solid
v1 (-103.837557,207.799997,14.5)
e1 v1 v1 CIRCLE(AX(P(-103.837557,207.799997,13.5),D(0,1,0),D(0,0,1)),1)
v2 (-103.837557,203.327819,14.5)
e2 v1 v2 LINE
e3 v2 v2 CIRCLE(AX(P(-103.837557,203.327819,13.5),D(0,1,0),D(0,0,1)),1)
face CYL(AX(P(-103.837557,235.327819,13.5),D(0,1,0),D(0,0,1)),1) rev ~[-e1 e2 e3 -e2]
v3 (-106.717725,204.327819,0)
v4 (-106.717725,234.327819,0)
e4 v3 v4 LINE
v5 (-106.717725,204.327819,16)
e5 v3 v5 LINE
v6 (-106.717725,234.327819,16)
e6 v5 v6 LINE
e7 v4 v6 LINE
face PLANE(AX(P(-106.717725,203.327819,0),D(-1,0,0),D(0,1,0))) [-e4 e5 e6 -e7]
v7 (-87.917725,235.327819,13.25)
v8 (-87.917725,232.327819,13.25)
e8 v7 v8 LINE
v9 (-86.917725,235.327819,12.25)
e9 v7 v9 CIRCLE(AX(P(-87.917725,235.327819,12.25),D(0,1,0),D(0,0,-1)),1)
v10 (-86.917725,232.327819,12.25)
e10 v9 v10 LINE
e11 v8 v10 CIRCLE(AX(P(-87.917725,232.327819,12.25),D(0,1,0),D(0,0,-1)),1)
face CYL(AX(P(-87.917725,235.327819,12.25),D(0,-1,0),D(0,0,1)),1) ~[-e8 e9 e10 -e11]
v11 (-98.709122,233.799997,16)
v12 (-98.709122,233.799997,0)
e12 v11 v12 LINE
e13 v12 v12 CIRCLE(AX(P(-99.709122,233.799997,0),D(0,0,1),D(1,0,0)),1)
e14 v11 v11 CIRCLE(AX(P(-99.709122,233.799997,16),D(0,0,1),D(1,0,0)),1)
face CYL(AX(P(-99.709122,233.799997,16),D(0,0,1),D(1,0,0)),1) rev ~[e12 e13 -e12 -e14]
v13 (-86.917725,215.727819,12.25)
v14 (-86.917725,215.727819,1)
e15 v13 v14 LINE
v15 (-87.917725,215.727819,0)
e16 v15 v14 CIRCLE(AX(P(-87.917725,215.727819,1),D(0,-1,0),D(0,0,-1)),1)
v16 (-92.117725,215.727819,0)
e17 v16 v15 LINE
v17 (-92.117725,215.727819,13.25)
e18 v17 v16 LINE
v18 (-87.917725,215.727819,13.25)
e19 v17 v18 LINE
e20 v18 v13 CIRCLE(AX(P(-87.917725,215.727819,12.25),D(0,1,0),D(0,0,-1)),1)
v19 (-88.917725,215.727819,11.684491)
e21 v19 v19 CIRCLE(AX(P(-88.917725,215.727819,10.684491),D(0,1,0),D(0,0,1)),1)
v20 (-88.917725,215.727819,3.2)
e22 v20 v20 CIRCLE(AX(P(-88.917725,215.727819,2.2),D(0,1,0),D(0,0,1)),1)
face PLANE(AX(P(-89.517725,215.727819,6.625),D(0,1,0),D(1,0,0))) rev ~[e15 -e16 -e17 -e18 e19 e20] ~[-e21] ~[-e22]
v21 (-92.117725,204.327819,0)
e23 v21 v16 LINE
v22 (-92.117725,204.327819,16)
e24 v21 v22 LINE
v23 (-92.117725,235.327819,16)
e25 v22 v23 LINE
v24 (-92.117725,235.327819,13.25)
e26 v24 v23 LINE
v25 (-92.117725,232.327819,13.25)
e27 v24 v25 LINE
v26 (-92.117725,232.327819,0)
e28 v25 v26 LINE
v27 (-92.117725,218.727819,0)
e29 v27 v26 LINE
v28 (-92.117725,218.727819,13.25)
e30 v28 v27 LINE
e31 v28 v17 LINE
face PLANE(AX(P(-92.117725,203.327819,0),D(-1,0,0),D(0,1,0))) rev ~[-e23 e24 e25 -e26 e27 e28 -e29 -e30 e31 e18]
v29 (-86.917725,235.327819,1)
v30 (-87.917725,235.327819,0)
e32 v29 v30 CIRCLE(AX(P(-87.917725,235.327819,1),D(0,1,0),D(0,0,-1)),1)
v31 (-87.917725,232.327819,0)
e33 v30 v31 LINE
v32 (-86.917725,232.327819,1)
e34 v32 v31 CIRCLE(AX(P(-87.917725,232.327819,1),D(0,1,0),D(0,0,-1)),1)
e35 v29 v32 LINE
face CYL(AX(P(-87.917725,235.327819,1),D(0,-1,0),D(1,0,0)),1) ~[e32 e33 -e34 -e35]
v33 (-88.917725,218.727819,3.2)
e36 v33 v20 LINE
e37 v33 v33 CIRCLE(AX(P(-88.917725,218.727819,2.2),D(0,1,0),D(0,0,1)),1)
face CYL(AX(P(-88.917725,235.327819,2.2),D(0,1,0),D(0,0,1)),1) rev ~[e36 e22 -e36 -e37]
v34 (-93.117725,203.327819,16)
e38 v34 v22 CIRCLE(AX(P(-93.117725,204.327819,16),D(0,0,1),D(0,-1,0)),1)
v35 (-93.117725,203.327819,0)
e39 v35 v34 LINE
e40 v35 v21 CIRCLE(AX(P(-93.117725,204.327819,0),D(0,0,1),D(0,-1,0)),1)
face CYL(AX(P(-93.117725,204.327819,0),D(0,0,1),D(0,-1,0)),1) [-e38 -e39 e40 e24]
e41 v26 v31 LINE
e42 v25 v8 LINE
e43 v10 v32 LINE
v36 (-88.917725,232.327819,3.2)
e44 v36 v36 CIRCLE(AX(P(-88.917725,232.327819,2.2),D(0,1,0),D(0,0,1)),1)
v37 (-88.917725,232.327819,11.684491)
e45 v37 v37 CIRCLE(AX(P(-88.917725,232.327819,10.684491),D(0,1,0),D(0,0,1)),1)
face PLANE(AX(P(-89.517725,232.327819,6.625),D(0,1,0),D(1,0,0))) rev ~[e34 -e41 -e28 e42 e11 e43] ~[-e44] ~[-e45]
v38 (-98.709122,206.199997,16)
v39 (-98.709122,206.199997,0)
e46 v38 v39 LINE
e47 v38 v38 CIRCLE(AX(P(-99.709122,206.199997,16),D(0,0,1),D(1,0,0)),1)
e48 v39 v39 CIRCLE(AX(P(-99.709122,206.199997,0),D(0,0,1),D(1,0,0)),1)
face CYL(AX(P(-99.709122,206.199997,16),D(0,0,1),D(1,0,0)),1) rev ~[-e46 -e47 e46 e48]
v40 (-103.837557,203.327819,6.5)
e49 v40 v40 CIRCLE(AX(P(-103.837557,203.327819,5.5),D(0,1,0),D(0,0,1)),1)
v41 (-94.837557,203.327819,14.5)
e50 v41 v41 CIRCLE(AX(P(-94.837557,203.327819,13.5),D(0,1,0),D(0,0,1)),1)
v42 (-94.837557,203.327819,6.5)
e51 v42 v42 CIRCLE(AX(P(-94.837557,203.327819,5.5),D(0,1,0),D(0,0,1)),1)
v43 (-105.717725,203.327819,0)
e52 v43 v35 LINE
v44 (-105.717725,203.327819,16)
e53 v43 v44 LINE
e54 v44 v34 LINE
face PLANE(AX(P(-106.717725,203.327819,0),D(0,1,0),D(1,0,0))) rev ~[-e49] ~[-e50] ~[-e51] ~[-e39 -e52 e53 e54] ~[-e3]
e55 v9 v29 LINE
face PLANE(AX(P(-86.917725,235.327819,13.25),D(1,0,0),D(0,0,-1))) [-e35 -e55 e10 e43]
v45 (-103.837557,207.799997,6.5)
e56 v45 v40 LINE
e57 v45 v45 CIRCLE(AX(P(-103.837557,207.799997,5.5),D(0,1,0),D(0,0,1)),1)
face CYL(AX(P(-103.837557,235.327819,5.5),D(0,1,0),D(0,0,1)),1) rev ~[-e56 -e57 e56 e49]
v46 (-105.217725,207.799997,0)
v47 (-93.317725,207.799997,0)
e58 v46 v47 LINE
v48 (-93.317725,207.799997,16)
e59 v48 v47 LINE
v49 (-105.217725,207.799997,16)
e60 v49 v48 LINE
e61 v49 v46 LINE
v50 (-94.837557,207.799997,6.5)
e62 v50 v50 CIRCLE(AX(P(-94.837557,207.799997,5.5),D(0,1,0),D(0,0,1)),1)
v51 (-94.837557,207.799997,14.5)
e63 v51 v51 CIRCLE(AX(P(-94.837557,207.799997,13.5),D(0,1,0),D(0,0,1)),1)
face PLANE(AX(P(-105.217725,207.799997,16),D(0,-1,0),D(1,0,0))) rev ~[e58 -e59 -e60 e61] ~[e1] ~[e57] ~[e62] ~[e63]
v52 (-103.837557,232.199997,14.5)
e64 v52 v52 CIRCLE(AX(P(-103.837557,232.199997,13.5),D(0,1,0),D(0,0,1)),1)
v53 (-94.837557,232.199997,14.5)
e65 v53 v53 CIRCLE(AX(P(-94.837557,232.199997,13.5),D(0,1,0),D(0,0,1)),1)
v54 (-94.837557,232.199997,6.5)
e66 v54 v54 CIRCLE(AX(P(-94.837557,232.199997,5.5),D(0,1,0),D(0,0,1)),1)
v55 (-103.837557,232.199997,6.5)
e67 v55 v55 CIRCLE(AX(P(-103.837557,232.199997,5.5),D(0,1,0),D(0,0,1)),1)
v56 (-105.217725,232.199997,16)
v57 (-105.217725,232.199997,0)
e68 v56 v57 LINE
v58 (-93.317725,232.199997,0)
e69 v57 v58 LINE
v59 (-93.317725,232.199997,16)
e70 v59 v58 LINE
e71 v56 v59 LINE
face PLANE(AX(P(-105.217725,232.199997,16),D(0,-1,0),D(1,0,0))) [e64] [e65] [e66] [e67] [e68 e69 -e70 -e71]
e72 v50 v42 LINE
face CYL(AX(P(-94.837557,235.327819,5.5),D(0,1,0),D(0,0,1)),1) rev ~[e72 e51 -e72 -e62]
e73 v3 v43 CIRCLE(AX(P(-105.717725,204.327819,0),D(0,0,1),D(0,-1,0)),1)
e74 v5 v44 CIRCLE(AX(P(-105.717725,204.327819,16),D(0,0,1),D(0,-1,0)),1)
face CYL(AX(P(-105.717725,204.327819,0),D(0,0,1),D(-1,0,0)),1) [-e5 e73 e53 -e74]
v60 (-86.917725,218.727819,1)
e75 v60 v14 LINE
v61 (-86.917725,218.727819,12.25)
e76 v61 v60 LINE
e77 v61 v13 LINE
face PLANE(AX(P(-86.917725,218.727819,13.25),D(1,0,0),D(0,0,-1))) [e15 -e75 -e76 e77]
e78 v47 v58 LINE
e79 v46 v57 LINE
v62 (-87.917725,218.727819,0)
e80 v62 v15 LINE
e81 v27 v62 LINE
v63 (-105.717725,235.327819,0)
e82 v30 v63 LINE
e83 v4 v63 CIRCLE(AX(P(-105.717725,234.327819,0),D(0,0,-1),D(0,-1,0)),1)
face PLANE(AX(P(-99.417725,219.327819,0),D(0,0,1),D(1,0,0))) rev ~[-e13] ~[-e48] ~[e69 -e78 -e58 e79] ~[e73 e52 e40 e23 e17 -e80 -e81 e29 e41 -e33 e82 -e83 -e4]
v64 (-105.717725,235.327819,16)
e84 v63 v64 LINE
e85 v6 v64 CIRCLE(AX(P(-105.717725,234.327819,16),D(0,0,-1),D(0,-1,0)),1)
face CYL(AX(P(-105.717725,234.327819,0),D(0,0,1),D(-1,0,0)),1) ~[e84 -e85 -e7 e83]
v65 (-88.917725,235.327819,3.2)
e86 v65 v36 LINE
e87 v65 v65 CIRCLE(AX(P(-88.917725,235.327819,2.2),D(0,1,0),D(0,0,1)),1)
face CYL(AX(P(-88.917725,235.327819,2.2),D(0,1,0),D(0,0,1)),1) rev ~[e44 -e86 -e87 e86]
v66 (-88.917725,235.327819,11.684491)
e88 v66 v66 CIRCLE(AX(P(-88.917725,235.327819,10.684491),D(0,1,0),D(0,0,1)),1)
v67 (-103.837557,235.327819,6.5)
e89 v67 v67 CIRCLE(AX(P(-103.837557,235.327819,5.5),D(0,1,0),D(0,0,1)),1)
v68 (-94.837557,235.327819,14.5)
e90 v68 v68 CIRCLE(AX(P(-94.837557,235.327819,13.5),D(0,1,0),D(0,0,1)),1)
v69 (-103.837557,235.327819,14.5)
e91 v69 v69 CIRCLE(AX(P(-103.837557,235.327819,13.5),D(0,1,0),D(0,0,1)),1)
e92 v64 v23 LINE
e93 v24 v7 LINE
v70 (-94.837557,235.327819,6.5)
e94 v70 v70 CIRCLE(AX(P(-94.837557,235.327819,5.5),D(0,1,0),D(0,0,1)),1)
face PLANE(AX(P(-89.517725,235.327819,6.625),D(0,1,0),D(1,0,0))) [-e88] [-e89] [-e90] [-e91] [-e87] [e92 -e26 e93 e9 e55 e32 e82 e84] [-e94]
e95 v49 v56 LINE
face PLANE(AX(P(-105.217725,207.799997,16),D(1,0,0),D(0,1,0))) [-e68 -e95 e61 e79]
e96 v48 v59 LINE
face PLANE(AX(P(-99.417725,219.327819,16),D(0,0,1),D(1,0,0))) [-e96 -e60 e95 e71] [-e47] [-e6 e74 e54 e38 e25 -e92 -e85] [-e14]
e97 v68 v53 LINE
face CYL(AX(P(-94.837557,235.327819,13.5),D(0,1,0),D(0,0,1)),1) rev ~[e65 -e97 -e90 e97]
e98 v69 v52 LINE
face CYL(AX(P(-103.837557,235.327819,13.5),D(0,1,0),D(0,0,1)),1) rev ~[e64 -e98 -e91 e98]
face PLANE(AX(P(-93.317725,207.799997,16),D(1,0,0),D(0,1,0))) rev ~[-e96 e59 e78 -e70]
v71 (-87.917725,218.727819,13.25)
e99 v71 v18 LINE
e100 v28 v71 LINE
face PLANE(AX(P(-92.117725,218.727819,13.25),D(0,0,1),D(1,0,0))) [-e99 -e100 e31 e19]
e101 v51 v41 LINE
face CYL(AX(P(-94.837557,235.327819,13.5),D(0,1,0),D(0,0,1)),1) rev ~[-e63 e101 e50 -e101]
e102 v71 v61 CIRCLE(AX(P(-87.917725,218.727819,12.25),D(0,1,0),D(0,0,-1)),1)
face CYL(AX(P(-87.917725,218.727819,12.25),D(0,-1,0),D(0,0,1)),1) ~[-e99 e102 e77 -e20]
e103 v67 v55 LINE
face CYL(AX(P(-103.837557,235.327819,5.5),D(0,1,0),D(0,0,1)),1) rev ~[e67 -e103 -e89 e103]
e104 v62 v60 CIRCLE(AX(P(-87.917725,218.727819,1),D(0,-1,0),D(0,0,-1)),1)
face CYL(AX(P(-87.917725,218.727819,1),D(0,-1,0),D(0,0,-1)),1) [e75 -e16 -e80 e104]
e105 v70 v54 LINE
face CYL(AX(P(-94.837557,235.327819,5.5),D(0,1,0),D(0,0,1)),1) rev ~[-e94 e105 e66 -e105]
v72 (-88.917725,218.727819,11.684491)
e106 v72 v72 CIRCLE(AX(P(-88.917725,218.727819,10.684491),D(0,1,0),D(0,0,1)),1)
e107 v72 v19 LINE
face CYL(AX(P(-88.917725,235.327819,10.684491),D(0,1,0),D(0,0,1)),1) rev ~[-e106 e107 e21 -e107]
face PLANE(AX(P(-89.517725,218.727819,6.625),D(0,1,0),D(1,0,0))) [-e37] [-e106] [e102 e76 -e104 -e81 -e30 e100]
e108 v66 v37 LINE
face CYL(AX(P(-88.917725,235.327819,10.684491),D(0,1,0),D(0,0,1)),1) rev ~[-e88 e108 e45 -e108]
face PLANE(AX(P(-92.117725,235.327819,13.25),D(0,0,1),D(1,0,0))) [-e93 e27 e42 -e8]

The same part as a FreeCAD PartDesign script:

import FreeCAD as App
import Part
import Sketcher


def edges_at(feature, points):
    """Names of the edges that pass closest to the given points."""
    edges = feature.Shape.Edges
    near = lambda p: min(range(len(edges)), key=lambda i: edges[i].distToShape(Part.Vertex(*p))[0])
    return sorted({f"Edge{near(p) + 1}" for p in points})


def add_polygon(sketch, points):
    """Adds a closed chain of lines whose ends are joined by coincident constraints."""
    first, n = sketch.GeometryCount, len(points)
    for a, b in zip(points, points[1:] + points[:1]):
        sketch.addGeometry(Part.LineSegment(App.Vector(*a, 0), App.Vector(*b, 0)), False)
    for i in range(n):
        sketch.addConstraint(Sketcher.Constraint("Coincident", first + i, 2, first + (i + 1) % n, 1))

doc = App.newDocument("Part")
body = doc.addObject("PartDesign::Body", "Body")

sketch1 = doc.addObject("Sketcher::SketchObject", "Sketch")
body.addObject(sketch1)
sketch1.AttachmentSupport = (doc.XY_Plane, [""])
sketch1.MapMode = "FlatFace"
add_polygon(sketch1, [(-107, 235), (-107, 203), (-92, 203), (-92, 235)])
sketch1.addConstraint(Sketcher.Constraint("Vertical", 0))
sketch1.addConstraint(Sketcher.Constraint("Horizontal", 1))
sketch1.addConstraint(Sketcher.Constraint("Vertical", 2))
sketch1.addConstraint(Sketcher.Constraint("Horizontal", 3))
sketch1.addConstraint(Sketcher.Constraint("DistanceY", 0, 2, 0, 1, 32.0))
sketch1.addConstraint(Sketcher.Constraint("DistanceX", 1, 1, 1, 2, 14.6))
sketch1.addConstraint(Sketcher.Constraint("DistanceY", -1, 1, 0, 2, 203.327819))
sketch1.addConstraint(Sketcher.Constraint("DistanceX", 0, 2, -1, 1, 106.717725))
pad1 = doc.addObject("PartDesign::Pad", "Pad")
body.addObject(pad1)
pad1.Profile = sketch1
pad1.Length = 16
doc.recompute()

fillet = doc.addObject("PartDesign::Fillet", "Fillet")
body.addObject(fillet)
fillet.Base = (pad1, edges_at(pad1, [(-106.718, 235.328, 8), (-92.118, 203.328, 8), (-106.718, 203.328, 8)]))
fillet.Radius = 1

sketch2 = doc.addObject("Sketcher::SketchObject", "Sketch001")
body.addObject(sketch2)
sketch2.AttachmentSupport = (doc.XY_Plane, [""])
sketch2.MapMode = "FlatFace"
sketch2.AttachmentOffset = App.Placement(App.Vector(0, 0, 16), App.Rotation())
add_polygon(sketch2, [(-105, 232), (-105, 208), (-93, 208), (-93, 232)])
sketch2.addConstraint(Sketcher.Constraint("Vertical", 0))
sketch2.addConstraint(Sketcher.Constraint("Horizontal", 1))
sketch2.addConstraint(Sketcher.Constraint("Vertical", 2))
sketch2.addConstraint(Sketcher.Constraint("Horizontal", 3))
sketch2.addConstraint(Sketcher.Constraint("DistanceX", 1, 1, 1, 2, 11.9))
sketch2.addConstraint(Sketcher.Constraint("DistanceY", 0, 2, 0, 1, 24.4))
sketch2.addConstraint(Sketcher.Constraint("DistanceX", 0, 2, -1, 1, 105.217725))
sketch2.addConstraint(Sketcher.Constraint("DistanceY", -1, 1, 0, 2, 207.799997))
pocket1 = doc.addObject("PartDesign::Pocket", "Pocket")
body.addObject(pocket1)
pocket1.Profile = sketch2
pocket1.Length = 16

sketch3 = doc.addObject("Sketcher::SketchObject", "Sketch002")
body.addObject(sketch3)
sketch3.AttachmentSupport = (doc.XY_Plane, [""])
sketch3.MapMode = "FlatFace"
sketch3.AttachmentOffset = App.Placement(App.Vector(0, 0, 16), App.Rotation())
sketch3.addGeometry(Part.Circle(App.Vector(-99.7, 233.8, 0), App.Vector(0, 0, 1), 1), False)
sketch3.addGeometry(Part.Circle(App.Vector(-99.7, 206.2, 0), App.Vector(0, 0, 1), 1), False)
sketch3.addConstraint(Sketcher.Constraint("Equal", 0, 1))
sketch3.addConstraint(Sketcher.Constraint("Vertical", 0, 3, 1, 3))
sketch3.addConstraint(Sketcher.Constraint("Diameter", 0, 2.0))
sketch3.addConstraint(Sketcher.Constraint("DistanceY", 1, 3, 0, 3, 27.6))
sketch3.addConstraint(Sketcher.Constraint("DistanceX", 0, 3, -1, 1, 99.709122))
sketch3.addConstraint(Sketcher.Constraint("DistanceY", -1, 1, 0, 3, 233.799997))
pocket2 = doc.addObject("PartDesign::Pocket", "Pocket001")
body.addObject(pocket2)
pocket2.Profile = sketch3
pocket2.Length = 16

sketch4 = doc.addObject("Sketcher::SketchObject", "Sketch003")
body.addObject(sketch4)
sketch4.AttachmentSupport = (doc.XZ_Plane, [""])
sketch4.MapMode = "FlatFace"
sketch4.AttachmentOffset = App.Placement(App.Vector(0, 0, -235.327819), App.Rotation())
sketch4.addGeometry(Part.Circle(App.Vector(-103.8, 5.5, 0), App.Vector(0, 0, 1), 1), False)
sketch4.addGeometry(Part.Circle(App.Vector(-94.8, 5.5, 0), App.Vector(0, 0, 1), 1), False)
sketch4.addGeometry(Part.Circle(App.Vector(-94.8, 13.5, 0), App.Vector(0, 0, 1), 1), False)
sketch4.addGeometry(Part.Circle(App.Vector(-103.8, 13.5, 0), App.Vector(0, 0, 1), 1), False)
sketch4.addConstraint(Sketcher.Constraint("Equal", 0, 1))
sketch4.addConstraint(Sketcher.Constraint("Equal", 1, 2))
sketch4.addConstraint(Sketcher.Constraint("Equal", 2, 3))
sketch4.addConstraint(Sketcher.Constraint("Horizontal", 0, 3, 1, 3))
sketch4.addConstraint(Sketcher.Constraint("Horizontal", 2, 3, 3, 3))
sketch4.addConstraint(Sketcher.Constraint("Vertical", 1, 3, 2, 3))
sketch4.addConstraint(Sketcher.Constraint("Vertical", 0, 3, 3, 3))
sketch4.addConstraint(Sketcher.Constraint("Diameter", 0, 2.0))
sketch4.addConstraint(Sketcher.Constraint("DistanceX", 0, 3, 1, 3, 9.0))
sketch4.addConstraint(Sketcher.Constraint("DistanceY", 1, 3, 2, 3, 8.0))
sketch4.addConstraint(Sketcher.Constraint("DistanceY", -1, 1, 0, 3, 5.5))
sketch4.addConstraint(Sketcher.Constraint("DistanceX", 0, 3, -1, 1, 103.837557))
pocket3 = doc.addObject("PartDesign::Pocket", "Pocket002")
body.addObject(pocket3)
pocket3.Profile = sketch4
pocket3.Type = "ThroughAll"
pocket3.Reversed = True

sketch5 = doc.addObject("Sketcher::SketchObject", "Sketch004")
body.addObject(sketch5)
sketch5.AttachmentSupport = (doc.XZ_Plane, [""])
sketch5.MapMode = "FlatFace"
sketch5.AttachmentOffset = App.Placement(App.Vector(0, 0, -235.327819), App.Rotation())
add_polygon(sketch5, [(-92, 0), (-92, 13), (-87, 13), (-87, 0)])
sketch5.addConstraint(Sketcher.Constraint("Vertical", 0))
sketch5.addConstraint(Sketcher.Constraint("Horizontal", 1))
sketch5.addConstraint(Sketcher.Constraint("Vertical", 2))
sketch5.addConstraint(Sketcher.Constraint("Horizontal", 3))
sketch5.addConstraint(Sketcher.Constraint("PointOnObject", 2, 2, -1))
sketch5.addConstraint(Sketcher.Constraint("DistanceX", 1, 1, 1, 2, 5.2))
sketch5.addConstraint(Sketcher.Constraint("DistanceY", 0, 1, 0, 2, 13.25))
sketch5.addConstraint(Sketcher.Constraint("DistanceX", 0, 2, -1, 1, 92.117725))
pad2 = doc.addObject("PartDesign::Pad", "Pad001")
body.addObject(pad2)
pad2.Profile = sketch5
pad2.Length = 3

sketch6 = doc.addObject("Sketcher::SketchObject", "Sketch005")
body.addObject(sketch6)
sketch6.AttachmentSupport = (doc.XZ_Plane, [""])
sketch6.MapMode = "FlatFace"
sketch6.AttachmentOffset = App.Placement(App.Vector(0, 0, -218.727819), App.Rotation())
add_polygon(sketch6, [(-92, 0), (-92, 13), (-87, 13), (-87, 0)])
sketch6.addConstraint(Sketcher.Constraint("Vertical", 0))
sketch6.addConstraint(Sketcher.Constraint("Horizontal", 1))
sketch6.addConstraint(Sketcher.Constraint("Vertical", 2))
sketch6.addConstraint(Sketcher.Constraint("Horizontal", 3))
sketch6.addConstraint(Sketcher.Constraint("PointOnObject", 2, 2, -1))
sketch6.addConstraint(Sketcher.Constraint("DistanceX", 1, 1, 1, 2, 5.2))
sketch6.addConstraint(Sketcher.Constraint("DistanceY", 0, 1, 0, 2, 13.25))
sketch6.addConstraint(Sketcher.Constraint("DistanceX", 0, 2, -1, 1, 92.117725))
pad3 = doc.addObject("PartDesign::Pad", "Pad002")
body.addObject(pad3)
pad3.Profile = sketch6
pad3.Length = 3

sketch7 = doc.addObject("Sketcher::SketchObject", "Sketch006")
body.addObject(sketch7)
sketch7.AttachmentSupport = (doc.XZ_Plane, [""])
sketch7.MapMode = "FlatFace"
sketch7.AttachmentOffset = App.Placement(App.Vector(0, 0, -235.327819), App.Rotation())
sketch7.addGeometry(Part.Circle(App.Vector(-88.9, 2.2, 0), App.Vector(0, 0, 1), 1), False)
sketch7.addGeometry(Part.Circle(App.Vector(-88.9, 10.7, 0), App.Vector(0, 0, 1), 1), False)
sketch7.addConstraint(Sketcher.Constraint("Equal", 0, 1))
sketch7.addConstraint(Sketcher.Constraint("Vertical", 0, 3, 1, 3))
sketch7.addConstraint(Sketcher.Constraint("Diameter", 0, 2.0))
sketch7.addConstraint(Sketcher.Constraint("DistanceY", -1, 1, 0, 3, 2.2))
sketch7.addConstraint(Sketcher.Constraint("DistanceY", -1, 1, 1, 3, 10.684491))
sketch7.addConstraint(Sketcher.Constraint("DistanceX", 0, 3, -1, 1, 88.917725))
pocket4 = doc.addObject("PartDesign::Pocket", "Pocket003")
body.addObject(pocket4)
pocket4.Profile = sketch7
pocket4.Length = 33
pocket4.Reversed = True
doc.recompute()

fillet2 = doc.addObject("PartDesign::Fillet", "Fillet001")
body.addObject(fillet2)
fillet2.Base = (pocket4, edges_at(pocket4, [
    (-86.918, 217.228, 0),
    (-86.918, 217.228, 13.25),
    (-86.918, 233.828, 0),
    (-86.918, 233.828, 13.25),
]))
fillet2.Radius = 1

doc.recompute()
